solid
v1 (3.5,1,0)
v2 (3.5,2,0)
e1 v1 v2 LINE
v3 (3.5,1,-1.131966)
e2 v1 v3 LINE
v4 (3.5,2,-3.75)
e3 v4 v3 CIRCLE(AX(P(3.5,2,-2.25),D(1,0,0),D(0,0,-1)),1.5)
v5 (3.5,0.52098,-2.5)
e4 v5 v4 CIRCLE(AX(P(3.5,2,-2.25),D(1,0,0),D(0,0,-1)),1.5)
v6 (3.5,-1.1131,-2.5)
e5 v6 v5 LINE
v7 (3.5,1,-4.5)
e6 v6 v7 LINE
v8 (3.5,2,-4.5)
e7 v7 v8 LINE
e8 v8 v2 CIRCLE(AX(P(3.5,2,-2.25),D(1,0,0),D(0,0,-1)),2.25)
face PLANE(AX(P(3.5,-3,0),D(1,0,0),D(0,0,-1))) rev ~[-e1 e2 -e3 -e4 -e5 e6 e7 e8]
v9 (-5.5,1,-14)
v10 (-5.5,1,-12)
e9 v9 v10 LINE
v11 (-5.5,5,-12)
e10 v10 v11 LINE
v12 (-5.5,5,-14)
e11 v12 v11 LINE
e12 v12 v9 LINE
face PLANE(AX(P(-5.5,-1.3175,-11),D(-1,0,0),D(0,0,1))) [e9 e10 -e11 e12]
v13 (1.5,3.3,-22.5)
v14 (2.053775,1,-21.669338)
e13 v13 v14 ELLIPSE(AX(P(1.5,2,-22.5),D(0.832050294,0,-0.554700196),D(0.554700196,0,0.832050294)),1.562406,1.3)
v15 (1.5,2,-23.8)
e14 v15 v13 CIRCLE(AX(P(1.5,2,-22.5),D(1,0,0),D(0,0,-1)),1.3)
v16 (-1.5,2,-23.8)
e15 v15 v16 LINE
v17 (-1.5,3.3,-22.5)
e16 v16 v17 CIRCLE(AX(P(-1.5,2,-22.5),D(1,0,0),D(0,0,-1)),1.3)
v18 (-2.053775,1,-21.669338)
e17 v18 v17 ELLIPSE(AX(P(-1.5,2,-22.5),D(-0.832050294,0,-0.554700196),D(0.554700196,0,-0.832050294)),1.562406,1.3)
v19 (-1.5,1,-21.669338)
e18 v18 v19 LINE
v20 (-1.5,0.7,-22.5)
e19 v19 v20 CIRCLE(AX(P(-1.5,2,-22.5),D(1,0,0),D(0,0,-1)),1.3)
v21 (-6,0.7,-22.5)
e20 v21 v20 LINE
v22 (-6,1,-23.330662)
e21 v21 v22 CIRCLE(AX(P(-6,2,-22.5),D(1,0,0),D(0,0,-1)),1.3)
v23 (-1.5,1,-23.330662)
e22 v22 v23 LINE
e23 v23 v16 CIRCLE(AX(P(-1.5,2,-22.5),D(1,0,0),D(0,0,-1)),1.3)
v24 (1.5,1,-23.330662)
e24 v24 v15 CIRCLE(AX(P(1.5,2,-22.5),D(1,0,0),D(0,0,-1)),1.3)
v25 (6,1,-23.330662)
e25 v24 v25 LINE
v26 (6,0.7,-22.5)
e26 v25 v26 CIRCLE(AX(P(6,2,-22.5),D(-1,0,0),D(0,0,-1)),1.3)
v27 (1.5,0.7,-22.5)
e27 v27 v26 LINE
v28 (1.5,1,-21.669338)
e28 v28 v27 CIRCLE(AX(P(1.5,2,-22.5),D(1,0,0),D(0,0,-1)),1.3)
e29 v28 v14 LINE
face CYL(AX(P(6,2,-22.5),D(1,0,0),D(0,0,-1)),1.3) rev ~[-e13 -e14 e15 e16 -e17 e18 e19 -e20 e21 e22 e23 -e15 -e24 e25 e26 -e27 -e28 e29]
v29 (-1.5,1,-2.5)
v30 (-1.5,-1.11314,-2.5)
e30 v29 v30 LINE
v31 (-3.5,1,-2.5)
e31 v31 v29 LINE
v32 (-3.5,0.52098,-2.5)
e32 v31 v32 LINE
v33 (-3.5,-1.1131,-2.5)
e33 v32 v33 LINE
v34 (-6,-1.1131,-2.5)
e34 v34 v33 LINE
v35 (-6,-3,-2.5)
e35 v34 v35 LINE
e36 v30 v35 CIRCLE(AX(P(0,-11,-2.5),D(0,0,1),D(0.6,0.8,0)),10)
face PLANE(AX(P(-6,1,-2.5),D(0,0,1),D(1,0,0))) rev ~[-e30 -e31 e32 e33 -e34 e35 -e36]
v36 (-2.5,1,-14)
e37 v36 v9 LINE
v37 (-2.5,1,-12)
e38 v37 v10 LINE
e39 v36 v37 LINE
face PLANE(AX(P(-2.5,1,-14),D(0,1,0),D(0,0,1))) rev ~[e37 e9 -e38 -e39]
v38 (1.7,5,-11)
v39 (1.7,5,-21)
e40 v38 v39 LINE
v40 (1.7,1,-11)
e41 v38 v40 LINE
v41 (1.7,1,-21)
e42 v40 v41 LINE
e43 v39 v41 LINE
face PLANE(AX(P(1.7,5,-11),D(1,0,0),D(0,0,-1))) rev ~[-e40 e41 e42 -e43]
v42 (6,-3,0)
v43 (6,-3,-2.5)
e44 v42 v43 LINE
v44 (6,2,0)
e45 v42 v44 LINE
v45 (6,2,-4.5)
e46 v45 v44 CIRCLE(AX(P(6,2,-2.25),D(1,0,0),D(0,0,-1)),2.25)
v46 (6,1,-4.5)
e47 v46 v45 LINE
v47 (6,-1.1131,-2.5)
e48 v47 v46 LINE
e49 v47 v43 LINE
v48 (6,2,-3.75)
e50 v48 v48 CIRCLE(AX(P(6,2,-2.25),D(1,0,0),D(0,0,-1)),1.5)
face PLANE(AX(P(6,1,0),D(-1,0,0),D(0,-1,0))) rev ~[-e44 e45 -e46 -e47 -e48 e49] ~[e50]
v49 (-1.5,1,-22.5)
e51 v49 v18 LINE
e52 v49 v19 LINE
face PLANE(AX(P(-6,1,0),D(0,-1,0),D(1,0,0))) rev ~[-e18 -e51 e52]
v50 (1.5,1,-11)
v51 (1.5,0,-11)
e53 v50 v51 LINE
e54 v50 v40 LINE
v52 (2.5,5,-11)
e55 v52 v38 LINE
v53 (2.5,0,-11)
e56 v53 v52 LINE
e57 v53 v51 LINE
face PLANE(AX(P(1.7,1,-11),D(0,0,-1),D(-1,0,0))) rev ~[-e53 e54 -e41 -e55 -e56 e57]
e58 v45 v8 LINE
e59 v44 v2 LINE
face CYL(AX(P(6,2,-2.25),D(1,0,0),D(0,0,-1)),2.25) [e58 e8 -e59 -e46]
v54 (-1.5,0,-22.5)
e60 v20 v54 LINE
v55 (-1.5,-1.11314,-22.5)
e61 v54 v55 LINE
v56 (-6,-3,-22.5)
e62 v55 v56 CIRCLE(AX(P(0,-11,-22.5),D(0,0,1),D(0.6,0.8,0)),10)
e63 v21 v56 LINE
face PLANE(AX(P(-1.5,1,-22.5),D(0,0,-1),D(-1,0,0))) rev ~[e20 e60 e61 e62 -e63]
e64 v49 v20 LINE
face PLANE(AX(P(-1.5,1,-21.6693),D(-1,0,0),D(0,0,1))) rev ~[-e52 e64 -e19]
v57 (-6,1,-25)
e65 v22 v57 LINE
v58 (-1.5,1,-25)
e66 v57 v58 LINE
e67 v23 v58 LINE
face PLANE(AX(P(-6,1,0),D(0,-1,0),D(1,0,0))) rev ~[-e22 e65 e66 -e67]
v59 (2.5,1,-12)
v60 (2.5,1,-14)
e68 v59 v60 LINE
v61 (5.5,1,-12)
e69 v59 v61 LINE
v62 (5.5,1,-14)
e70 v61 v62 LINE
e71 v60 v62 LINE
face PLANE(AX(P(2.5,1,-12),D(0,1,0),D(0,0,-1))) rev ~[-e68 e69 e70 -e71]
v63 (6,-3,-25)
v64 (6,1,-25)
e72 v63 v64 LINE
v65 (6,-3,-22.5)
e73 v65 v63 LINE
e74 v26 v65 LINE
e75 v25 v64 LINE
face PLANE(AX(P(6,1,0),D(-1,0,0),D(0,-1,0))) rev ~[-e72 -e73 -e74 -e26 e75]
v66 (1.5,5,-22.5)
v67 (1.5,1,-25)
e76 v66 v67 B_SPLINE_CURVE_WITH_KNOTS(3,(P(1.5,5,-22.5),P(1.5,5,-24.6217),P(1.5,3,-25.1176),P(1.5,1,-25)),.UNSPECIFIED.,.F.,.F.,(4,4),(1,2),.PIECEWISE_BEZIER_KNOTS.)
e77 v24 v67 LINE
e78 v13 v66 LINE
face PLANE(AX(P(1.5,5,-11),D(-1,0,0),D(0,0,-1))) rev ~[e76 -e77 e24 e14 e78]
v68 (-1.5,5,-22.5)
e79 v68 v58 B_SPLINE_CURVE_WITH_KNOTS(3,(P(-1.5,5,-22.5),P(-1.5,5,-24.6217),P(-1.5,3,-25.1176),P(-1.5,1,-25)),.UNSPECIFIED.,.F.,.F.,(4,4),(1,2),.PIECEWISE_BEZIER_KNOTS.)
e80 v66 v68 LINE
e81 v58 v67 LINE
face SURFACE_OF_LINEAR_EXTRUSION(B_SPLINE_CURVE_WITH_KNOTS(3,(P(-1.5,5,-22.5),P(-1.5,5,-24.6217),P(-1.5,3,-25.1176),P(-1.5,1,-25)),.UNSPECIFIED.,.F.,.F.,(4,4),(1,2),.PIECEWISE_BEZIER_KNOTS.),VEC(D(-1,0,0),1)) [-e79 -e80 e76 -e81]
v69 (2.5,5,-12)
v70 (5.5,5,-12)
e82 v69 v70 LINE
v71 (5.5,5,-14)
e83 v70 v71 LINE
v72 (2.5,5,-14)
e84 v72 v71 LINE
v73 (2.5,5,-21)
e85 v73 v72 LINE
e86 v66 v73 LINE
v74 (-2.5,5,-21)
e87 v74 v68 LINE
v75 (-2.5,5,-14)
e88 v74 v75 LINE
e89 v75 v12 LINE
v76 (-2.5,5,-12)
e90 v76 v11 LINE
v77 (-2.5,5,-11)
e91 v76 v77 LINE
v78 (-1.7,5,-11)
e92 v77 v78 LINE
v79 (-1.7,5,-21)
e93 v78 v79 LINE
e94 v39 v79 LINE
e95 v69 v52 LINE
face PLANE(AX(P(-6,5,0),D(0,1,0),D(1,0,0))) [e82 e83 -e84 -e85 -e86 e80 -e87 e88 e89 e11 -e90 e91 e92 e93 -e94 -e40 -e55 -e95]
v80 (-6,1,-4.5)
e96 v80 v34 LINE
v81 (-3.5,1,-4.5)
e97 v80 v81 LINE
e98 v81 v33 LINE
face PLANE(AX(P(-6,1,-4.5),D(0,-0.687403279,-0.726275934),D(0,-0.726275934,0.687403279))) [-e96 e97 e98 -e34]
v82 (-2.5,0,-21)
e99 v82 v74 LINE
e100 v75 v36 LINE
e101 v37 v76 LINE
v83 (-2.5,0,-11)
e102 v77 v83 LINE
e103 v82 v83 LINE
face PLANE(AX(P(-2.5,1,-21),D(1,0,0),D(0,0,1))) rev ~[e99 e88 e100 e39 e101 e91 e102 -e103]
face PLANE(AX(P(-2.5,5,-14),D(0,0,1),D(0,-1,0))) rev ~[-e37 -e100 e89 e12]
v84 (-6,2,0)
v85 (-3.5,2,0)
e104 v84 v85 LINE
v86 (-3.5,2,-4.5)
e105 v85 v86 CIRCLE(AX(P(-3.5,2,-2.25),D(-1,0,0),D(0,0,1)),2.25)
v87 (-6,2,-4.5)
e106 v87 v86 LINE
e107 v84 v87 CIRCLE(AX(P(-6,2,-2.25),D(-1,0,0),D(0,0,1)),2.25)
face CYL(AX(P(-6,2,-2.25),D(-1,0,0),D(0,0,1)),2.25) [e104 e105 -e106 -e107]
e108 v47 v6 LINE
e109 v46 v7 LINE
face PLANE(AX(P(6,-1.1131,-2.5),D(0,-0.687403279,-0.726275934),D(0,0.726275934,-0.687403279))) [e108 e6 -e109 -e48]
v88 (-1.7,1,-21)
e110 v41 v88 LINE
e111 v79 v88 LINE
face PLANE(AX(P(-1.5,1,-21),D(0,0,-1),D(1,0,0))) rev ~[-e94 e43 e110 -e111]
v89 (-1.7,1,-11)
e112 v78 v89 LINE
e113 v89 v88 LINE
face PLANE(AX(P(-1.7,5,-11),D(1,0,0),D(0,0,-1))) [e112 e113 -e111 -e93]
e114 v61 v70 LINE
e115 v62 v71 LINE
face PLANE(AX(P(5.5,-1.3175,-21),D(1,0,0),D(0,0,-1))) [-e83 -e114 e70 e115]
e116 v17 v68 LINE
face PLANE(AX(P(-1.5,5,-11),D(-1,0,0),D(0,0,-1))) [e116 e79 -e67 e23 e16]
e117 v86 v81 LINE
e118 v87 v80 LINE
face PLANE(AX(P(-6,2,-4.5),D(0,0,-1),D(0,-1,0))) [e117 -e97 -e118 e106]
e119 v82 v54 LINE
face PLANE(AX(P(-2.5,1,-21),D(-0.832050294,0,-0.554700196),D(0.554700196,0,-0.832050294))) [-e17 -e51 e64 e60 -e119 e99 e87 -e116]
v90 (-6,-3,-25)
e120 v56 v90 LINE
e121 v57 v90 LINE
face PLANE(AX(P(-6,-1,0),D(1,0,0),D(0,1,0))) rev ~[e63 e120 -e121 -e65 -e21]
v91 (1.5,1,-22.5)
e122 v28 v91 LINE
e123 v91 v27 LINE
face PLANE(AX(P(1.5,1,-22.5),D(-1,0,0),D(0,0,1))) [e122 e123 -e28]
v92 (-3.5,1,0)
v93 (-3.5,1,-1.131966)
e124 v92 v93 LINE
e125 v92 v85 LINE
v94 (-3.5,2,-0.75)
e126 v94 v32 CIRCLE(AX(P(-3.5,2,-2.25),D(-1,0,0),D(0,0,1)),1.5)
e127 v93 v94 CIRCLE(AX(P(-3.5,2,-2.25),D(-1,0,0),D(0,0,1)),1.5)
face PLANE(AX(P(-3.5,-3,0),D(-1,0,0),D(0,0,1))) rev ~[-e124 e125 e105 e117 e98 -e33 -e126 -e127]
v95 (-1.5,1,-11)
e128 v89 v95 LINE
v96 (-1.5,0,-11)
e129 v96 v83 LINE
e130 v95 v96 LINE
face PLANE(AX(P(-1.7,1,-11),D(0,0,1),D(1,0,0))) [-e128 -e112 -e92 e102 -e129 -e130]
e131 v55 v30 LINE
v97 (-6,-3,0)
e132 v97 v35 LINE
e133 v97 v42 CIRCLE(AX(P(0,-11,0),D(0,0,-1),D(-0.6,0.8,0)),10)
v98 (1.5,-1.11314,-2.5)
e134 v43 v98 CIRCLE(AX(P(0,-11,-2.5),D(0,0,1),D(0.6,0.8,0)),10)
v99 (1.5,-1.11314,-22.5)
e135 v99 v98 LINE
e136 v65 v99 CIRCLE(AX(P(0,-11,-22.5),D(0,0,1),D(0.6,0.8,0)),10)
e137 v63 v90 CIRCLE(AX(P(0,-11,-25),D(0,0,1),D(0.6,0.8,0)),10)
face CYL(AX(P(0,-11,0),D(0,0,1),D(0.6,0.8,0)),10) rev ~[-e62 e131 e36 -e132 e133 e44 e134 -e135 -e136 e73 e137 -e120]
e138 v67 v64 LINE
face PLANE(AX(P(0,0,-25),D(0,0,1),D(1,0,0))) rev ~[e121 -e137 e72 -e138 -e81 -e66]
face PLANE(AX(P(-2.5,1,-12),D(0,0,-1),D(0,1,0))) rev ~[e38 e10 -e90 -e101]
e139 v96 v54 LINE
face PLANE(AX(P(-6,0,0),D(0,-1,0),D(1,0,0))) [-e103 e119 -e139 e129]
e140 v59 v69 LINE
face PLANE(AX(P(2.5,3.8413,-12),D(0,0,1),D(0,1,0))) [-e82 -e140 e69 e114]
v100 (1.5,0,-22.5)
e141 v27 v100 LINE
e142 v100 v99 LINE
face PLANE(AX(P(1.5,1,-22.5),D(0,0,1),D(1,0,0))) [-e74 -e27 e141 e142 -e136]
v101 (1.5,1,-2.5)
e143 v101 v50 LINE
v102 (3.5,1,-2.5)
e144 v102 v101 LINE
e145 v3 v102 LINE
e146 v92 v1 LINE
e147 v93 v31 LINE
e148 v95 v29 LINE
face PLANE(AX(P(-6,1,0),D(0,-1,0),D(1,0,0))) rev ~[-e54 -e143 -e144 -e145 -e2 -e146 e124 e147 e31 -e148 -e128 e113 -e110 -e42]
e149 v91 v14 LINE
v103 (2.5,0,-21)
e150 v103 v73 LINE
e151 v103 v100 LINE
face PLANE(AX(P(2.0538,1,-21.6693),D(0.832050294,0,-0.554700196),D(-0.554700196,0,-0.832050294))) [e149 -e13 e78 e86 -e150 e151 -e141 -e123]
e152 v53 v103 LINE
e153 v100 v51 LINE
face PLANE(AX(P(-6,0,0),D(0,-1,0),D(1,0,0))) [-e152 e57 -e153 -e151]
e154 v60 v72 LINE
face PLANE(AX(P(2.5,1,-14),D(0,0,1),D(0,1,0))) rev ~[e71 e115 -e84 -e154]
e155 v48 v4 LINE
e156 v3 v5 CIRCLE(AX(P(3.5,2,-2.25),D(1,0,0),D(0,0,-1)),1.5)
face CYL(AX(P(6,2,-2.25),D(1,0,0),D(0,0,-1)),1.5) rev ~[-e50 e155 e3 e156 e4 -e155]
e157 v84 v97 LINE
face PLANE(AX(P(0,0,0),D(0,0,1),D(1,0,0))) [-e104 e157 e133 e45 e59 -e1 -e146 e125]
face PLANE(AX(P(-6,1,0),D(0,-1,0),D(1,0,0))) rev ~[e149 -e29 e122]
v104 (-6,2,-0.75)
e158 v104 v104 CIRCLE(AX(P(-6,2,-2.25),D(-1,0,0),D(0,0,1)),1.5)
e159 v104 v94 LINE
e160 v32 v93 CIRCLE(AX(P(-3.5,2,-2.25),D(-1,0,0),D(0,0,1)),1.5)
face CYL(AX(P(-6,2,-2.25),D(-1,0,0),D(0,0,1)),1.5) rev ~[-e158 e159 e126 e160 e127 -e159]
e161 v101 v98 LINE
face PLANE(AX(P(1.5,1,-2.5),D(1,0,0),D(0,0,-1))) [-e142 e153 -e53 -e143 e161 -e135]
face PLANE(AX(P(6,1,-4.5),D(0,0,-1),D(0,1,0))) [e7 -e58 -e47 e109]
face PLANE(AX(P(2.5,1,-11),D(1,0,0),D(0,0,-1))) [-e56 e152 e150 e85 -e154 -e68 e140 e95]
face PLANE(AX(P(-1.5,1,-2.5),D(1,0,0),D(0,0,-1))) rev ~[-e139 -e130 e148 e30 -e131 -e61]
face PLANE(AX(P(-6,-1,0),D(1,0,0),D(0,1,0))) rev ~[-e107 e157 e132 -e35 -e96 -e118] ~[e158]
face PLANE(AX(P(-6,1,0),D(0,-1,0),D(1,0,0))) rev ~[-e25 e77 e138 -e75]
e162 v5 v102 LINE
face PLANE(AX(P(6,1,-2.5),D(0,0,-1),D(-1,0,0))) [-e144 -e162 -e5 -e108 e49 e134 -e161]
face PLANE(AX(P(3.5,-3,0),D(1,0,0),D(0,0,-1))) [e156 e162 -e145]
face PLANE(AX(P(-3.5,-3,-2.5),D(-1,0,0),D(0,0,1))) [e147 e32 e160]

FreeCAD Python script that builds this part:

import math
import FreeCAD as App
import Part
import Sketcher

V = App.Vector
Q = App.Units.Quantity

doc = App.newDocument("Part")
body = doc.addObject("PartDesign::Body", "Body")

# Sketch on XY plane
sketch1 = body.newObject("Sketcher::SketchObject", "Sketch")
sketch1.AttachmentSupport = (doc.getObject("XY_Plane"), [""])
sketch1.MapMode = "FlatFace"
sketch1.addGeometry(Part.LineSegment(V(6, 1, 0), V(-6, 1, 0)), False)
sketch1.addGeometry(Part.LineSegment(V(-6, 1, 0), V(-6, -3, 0)), False)
sketch1.addGeometry(Part.ArcOfCircle(Part.Circle(V(0, -11, 0), V(0, 0, 1), 10), math.radians(53), math.radians(127)), False)
sketch1.addGeometry(Part.LineSegment(V(6, -3, 0), V(6, 1, 0)), False)
sketch1.addConstraint(Sketcher.Constraint("Coincident", 0, 2, 1, 1))
sketch1.addConstraint(Sketcher.Constraint("Coincident", 1, 2, 2, 2))
sketch1.addConstraint(Sketcher.Constraint("Coincident", 2, 1, 3, 1))
sketch1.addConstraint(Sketcher.Constraint("Coincident", 3, 2, 0, 1))
sketch1.addConstraint(Sketcher.Constraint("Horizontal", 0))
sketch1.addConstraint(Sketcher.Constraint("Vertical", 1))
sketch1.addConstraint(Sketcher.Constraint("Vertical", 3))
sketch1.addConstraint(Sketcher.Constraint("Symmetric", 1, 2, 2, 1, -2))
sketch1.addConstraint(Sketcher.Constraint("DistanceX", 0, 2, 0, 1, Q("12 mm")))
sketch1.addConstraint(Sketcher.Constraint("Radius", 2, Q("10 mm")))
sketch1.addConstraint(Sketcher.Constraint("DistanceY", 2, 3, 0, 2, Q("12 mm")))
sketch1.addConstraint(Sketcher.Constraint("DistanceY", 2, 3, -1, 1, Q("11 mm")))
pad1 = body.newObject("PartDesign::Pad", "Pad")
pad1.Profile = sketch1
pad1.Length = 25
pad1.Reversed = True

# Sketch on XZ plane
sketch2 = body.newObject("Sketcher::SketchObject", "Sketch001")
sketch2.AttachmentSupport = (doc.getObject("XZ_Plane"), [""])
sketch2.MapMode = "FlatFace"
sketch2.AttachmentOffset = App.Placement(V(0, 0, -1), App.Rotation())
sketch2.addGeometry(Part.LineSegment(V(1.5, -2.5, 0), V(6, -2.5, 0)), False)
sketch2.addGeometry(Part.LineSegment(V(6, -2.5, 0), V(6, -22.5, 0)), False)
sketch2.addGeometry(Part.LineSegment(V(6, -22.5, 0), V(1.5, -22.5, 0)), False)
sketch2.addGeometry(Part.LineSegment(V(1.5, -22.5, 0), V(1.5, -2.5, 0)), False)
sketch2.addGeometry(Part.LineSegment(V(-6, -22.5, 0), V(-6, -2.5, 0)), False)
sketch2.addGeometry(Part.LineSegment(V(-6, -2.5, 0), V(-1.5, -2.5, 0)), False)
sketch2.addGeometry(Part.LineSegment(V(-1.5, -2.5, 0), V(-1.5, -22.5, 0)), False)
sketch2.addGeometry(Part.LineSegment(V(-1.5, -22.5, 0), V(-6, -22.5, 0)), False)
sketch2.addConstraint(Sketcher.Constraint("Coincident", 0, 2, 1, 1))
sketch2.addConstraint(Sketcher.Constraint("Coincident", 1, 2, 2, 1))
sketch2.addConstraint(Sketcher.Constraint("Coincident", 2, 2, 3, 1))
sketch2.addConstraint(Sketcher.Constraint("Coincident", 3, 2, 0, 1))
sketch2.addConstraint(Sketcher.Constraint("Coincident", 4, 2, 5, 1))
sketch2.addConstraint(Sketcher.Constraint("Coincident", 5, 2, 6, 1))
sketch2.addConstraint(Sketcher.Constraint("Coincident", 6, 2, 7, 1))
sketch2.addConstraint(Sketcher.Constraint("Coincident", 7, 2, 4, 1))
sketch2.addConstraint(Sketcher.Constraint("Horizontal", 0))
sketch2.addConstraint(Sketcher.Constraint("Vertical", 1))
sketch2.addConstraint(Sketcher.Constraint("Horizontal", 2))
sketch2.addConstraint(Sketcher.Constraint("Vertical", 3))
sketch2.addConstraint(Sketcher.Constraint("Vertical", 4))
sketch2.addConstraint(Sketcher.Constraint("Horizontal", 5))
sketch2.addConstraint(Sketcher.Constraint("Vertical", 6))
sketch2.addConstraint(Sketcher.Constraint("Horizontal", 7))
sketch2.addConstraint(Sketcher.Constraint("Symmetric", 0, 2, 4, 2, -2))
sketch2.addConstraint(Sketcher.Constraint("Symmetric", 2, 2, 6, 2, -2))
sketch2.addConstraint(Sketcher.Constraint("DistanceX", 0, 1, 0, 2, Q("4.5 mm")))
sketch2.addConstraint(Sketcher.Constraint("DistanceX", 4, 2, 0, 2, Q("12 mm")))
sketch2.addConstraint(Sketcher.Constraint("DistanceY", 0, 2, -1, 1, Q("2.5 mm")))
sketch2.addConstraint(Sketcher.Constraint("DistanceY", 1, 2, 1, 1, Q("20 mm")))
pocket1 = body.newObject("PartDesign::Pocket", "Pocket")
pocket1.Profile = sketch2
pocket1.Length = 25
pocket1.Reversed = True

# Sketch on XZ plane
sketch3 = body.newObject("Sketcher::SketchObject", "Sketch002")
sketch3.AttachmentSupport = (doc.getObject("XZ_Plane"), [""])
sketch3.MapMode = "FlatFace"
sketch3.AttachmentOffset = App.Placement(V(0, 0, -1), App.Rotation())
sketch3.addGeometry(Part.LineSegment(V(1.5, -21, 0), V(1.5, -11, 0)), False)
sketch3.addGeometry(Part.LineSegment(V(1.5, -11, 0), V(2.5, -11, 0)), False)
sketch3.addGeometry(Part.LineSegment(V(2.5, -11, 0), V(2.5, -21, 0)), False)
sketch3.addGeometry(Part.LineSegment(V(2.5, -21, 0), V(1.5, -22.5, 0)), False)
sketch3.addGeometry(Part.LineSegment(V(1.5, -22.5, 0), V(-1.5, -22.5, 0)), False)
sketch3.addGeometry(Part.LineSegment(V(-1.5, -22.5, 0), V(-2.5, -21, 0)), False)
sketch3.addGeometry(Part.LineSegment(V(-2.5, -21, 0), V(-2.5, -11, 0)), False)
sketch3.addGeometry(Part.LineSegment(V(-2.5, -11, 0), V(-1.5, -11, 0)), False)
sketch3.addGeometry(Part.LineSegment(V(-1.5, -11, 0), V(-1.5, -21, 0)), False)
sketch3.addGeometry(Part.LineSegment(V(-1.5, -21, 0), V(1.5, -21, 0)), False)
sketch3.addConstraint(Sketcher.Constraint("Coincident", 0, 2, 1, 1))
sketch3.addConstraint(Sketcher.Constraint("Coincident", 1, 2, 2, 1))
sketch3.addConstraint(Sketcher.Constraint("Coincident", 2, 2, 3, 1))
sketch3.addConstraint(Sketcher.Constraint("Coincident", 3, 2, 4, 1))
sketch3.addConstraint(Sketcher.Constraint("Coincident", 4, 2, 5, 1))
sketch3.addConstraint(Sketcher.Constraint("Coincident", 5, 2, 6, 1))
sketch3.addConstraint(Sketcher.Constraint("Coincident", 6, 2, 7, 1))
sketch3.addConstraint(Sketcher.Constraint("Coincident", 7, 2, 8, 1))
sketch3.addConstraint(Sketcher.Constraint("Coincident", 8, 2, 9, 1))
sketch3.addConstraint(Sketcher.Constraint("Coincident", 9, 2, 0, 1))
sketch3.addConstraint(Sketcher.Constraint("Vertical", 0))
sketch3.addConstraint(Sketcher.Constraint("Horizontal", 1))
sketch3.addConstraint(Sketcher.Constraint("Vertical", 2))
sketch3.addConstraint(Sketcher.Constraint("Horizontal", 4))
sketch3.addConstraint(Sketcher.Constraint("Vertical", 6))
sketch3.addConstraint(Sketcher.Constraint("Horizontal", 7))
sketch3.addConstraint(Sketcher.Constraint("Vertical", 8))
sketch3.addConstraint(Sketcher.Constraint("Horizontal", 9))
sketch3.addConstraint(Sketcher.Constraint("Symmetric", 2, 2, 5, 2, -2))
sketch3.addConstraint(Sketcher.Constraint("Symmetric", 0, 2, 7, 2, -2))
sketch3.addConstraint(Sketcher.Constraint("Horizontal", 5, 2, 8, 2))
sketch3.addConstraint(Sketcher.Constraint("Vertical", 0, 2, 3, 2))
sketch3.addConstraint(Sketcher.Constraint("Vertical", 4, 2, 7, 2))
sketch3.addConstraint(Sketcher.Constraint("DistanceX", 1, 1, 1, 2, Q("1 mm")))
sketch3.addConstraint(Sketcher.Constraint("DistanceY", 0, 1, 0, 2, Q("10 mm")))
sketch3.addConstraint(Sketcher.Constraint("DistanceX", -1, 1, 0, 2, Q("1.5 mm")))
sketch3.addConstraint(Sketcher.Constraint("DistanceY", 3, 2, 2, 2, Q("1.5 mm")))
sketch3.addConstraint(Sketcher.Constraint("DistanceY", 0, 2, -1, 1, Q("11 mm")))
pad2 = body.newObject("PartDesign::Pad", "Pad001")
pad2.Profile = sketch3
pad2.Length = 4
pad2.Reversed = True

# Sketch on YZ plane
sketch4 = body.newObject("Sketcher::SketchObject", "Sketch003")
sketch4.AttachmentSupport = (doc.getObject("YZ_Plane"), [""])
sketch4.MapMode = "FlatFace"
sketch4.AttachmentOffset = App.Placement(V(0, 0, -1.5), App.Rotation())
sketch4.addGeometry(Part.LineSegment(V(1, -25, 0), V(1, -22.5, 0)), False)
sketch4.addGeometry(Part.LineSegment(V(1, -22.5, 0), V(5, -22.5, 0)), False)
sketch4.addGeometry(Part.BSplineCurve([V(5, -22.5, 0), V(5, -24.6217, 0), V(3, -25.1176, 0), V(1, -25, 0)], [4, 4], [1, 2], False, 3, [1, 1, 1, 1], False), False)
sketch4.addConstraint(Sketcher.Constraint("Block", 2))
sketch4.addConstraint(Sketcher.Constraint("Coincident", 0, 2, 1, 1))
sketch4.addConstraint(Sketcher.Constraint("Coincident", 1, 2, 2, 1))
sketch4.addConstraint(Sketcher.Constraint("Coincident", 2, 2, 0, 1))
sketch4.addConstraint(Sketcher.Constraint("Vertical", 0))
sketch4.addConstraint(Sketcher.Constraint("Horizontal", 1))
pad3 = body.newObject("PartDesign::Pad", "Pad002")
pad3.Profile = sketch4
pad3.Length = 3

# Sketch on YZ plane
sketch5 = body.newObject("Sketcher::SketchObject", "Sketch004")
sketch5.AttachmentSupport = (doc.getObject("YZ_Plane"), [""])
sketch5.MapMode = "FlatFace"
sketch5.AttachmentOffset = App.Placement(V(0, 0, 6), App.Rotation())
sketch5.addGeometry(Part.Circle(V(2, -22.5, 0), V(0, 0, 1), 1.3), False)
sketch5.addConstraint(Sketcher.Constraint("Diameter", 0, Q("2.6 mm")))
sketch5.addConstraint(Sketcher.Constraint("DistanceX", -1, 1, 0, 3, Q("2 mm")))
sketch5.addConstraint(Sketcher.Constraint("DistanceY", 0, 3, -1, 1, Q("22.5 mm")))
pocket2 = body.newObject("PartDesign::Pocket", "Pocket001")
pocket2.Profile = sketch5
pocket2.Length = 12

# Sketch on XZ plane
sketch6 = body.newObject("Sketcher::SketchObject", "Sketch005")
sketch6.AttachmentSupport = (doc.getObject("XZ_Plane"), [""])
sketch6.MapMode = "FlatFace"
sketch6.AttachmentOffset = App.Placement(V(0, 0, -5), App.Rotation())
sketch6.addGeometry(Part.LineSegment(V(-1.7, -21, 0), V(-1.7, -11, 0)), False)
sketch6.addGeometry(Part.LineSegment(V(-1.7, -11, 0), V(-1.5, -11, 0)), False)
sketch6.addGeometry(Part.LineSegment(V(-1.5, -11, 0), V(-1.5, -21, 0)), False)
sketch6.addGeometry(Part.LineSegment(V(-1.5, -21, 0), V(-1.7, -21, 0)), False)
sketch6.addGeometry(Part.LineSegment(V(1.7, -21, 0), V(1.5, -21, 0)), False)
sketch6.addGeometry(Part.LineSegment(V(1.5, -21, 0), V(1.5, -11, 0)), False)
sketch6.addGeometry(Part.LineSegment(V(1.5, -11, 0), V(1.7, -11, 0)), False)
sketch6.addGeometry(Part.LineSegment(V(1.7, -11, 0), V(1.7, -21, 0)), False)
sketch6.addConstraint(Sketcher.Constraint("Coincident", 0, 2, 1, 1))
sketch6.addConstraint(Sketcher.Constraint("Coincident", 1, 2, 2, 1))
sketch6.addConstraint(Sketcher.Constraint("Coincident", 2, 2, 3, 1))
sketch6.addConstraint(Sketcher.Constraint("Coincident", 3, 2, 0, 1))
sketch6.addConstraint(Sketcher.Constraint("Coincident", 4, 2, 5, 1))
sketch6.addConstraint(Sketcher.Constraint("Coincident", 5, 2, 6, 1))
sketch6.addConstraint(Sketcher.Constraint("Coincident", 6, 2, 7, 1))
sketch6.addConstraint(Sketcher.Constraint("Coincident", 7, 2, 4, 1))
sketch6.addConstraint(Sketcher.Constraint("Vertical", 0))
sketch6.addConstraint(Sketcher.Constraint("Horizontal", 1))
sketch6.addConstraint(Sketcher.Constraint("Vertical", 2))
sketch6.addConstraint(Sketcher.Constraint("Horizontal", 3))
sketch6.addConstraint(Sketcher.Constraint("Horizontal", 4))
sketch6.addConstraint(Sketcher.Constraint("Vertical", 5))
sketch6.addConstraint(Sketcher.Constraint("Horizontal", 6))
sketch6.addConstraint(Sketcher.Constraint("Vertical", 7))
sketch6.addConstraint(Sketcher.Constraint("Symmetric", 2, 2, 4, 2, -2))
sketch6.addConstraint(Sketcher.Constraint("Symmetric", 0, 2, 6, 2, -2))
sketch6.addConstraint(Sketcher.Constraint("DistanceX", 1, 1, 1, 2, Q("0.2 mm")))
sketch6.addConstraint(Sketcher.Constraint("DistanceY", 0, 1, 0, 2, Q("10 mm")))
sketch6.addConstraint(Sketcher.Constraint("DistanceY", 0, 2, -1, 1, Q("11 mm")))
sketch6.addConstraint(Sketcher.Constraint("DistanceX", 2, 2, 4, 2, Q("3 mm")))
pocket3 = body.newObject("PartDesign::Pocket", "Pocket002")
pocket3.Profile = sketch6
pocket3.Length = 4
pocket3.Reversed = True

# Sketch on YZ plane
sketch7 = body.newObject("Sketcher::SketchObject", "Sketch006")
sketch7.AttachmentSupport = (doc.getObject("YZ_Plane"), [""])
sketch7.MapMode = "FlatFace"
sketch7.AttachmentOffset = App.Placement(V(0, 0, 6), App.Rotation())
sketch7.addGeometry(Part.LineSegment(V(2, 0, 0), V(1, 0, 0)), False)
sketch7.addGeometry(Part.LineSegment(V(1, 0, 0), V(1, -2.5, 0)), False)
sketch7.addGeometry(Part.LineSegment(V(1, -2.5, 0), V(-1.1, -2.5, 0)), False)
sketch7.addGeometry(Part.LineSegment(V(-1.1, -2.5, 0), V(1, -4.5, 0)), False)
sketch7.addGeometry(Part.LineSegment(V(1, -4.5, 0), V(2, -4.5, 0)), False)
sketch7.addGeometry(Part.ArcOfCircle(Part.Circle(V(2, -2.2, 0), V(0, 0, 1), 2.2), math.radians(-90), math.radians(90)), False)
sketch7.addConstraint(Sketcher.Constraint("Coincident", 0, 2, 1, 1))
sketch7.addConstraint(Sketcher.Constraint("Coincident", 1, 2, 2, 1))
sketch7.addConstraint(Sketcher.Constraint("Coincident", 2, 2, 3, 1))
sketch7.addConstraint(Sketcher.Constraint("Coincident", 3, 2, 4, 1))
sketch7.addConstraint(Sketcher.Constraint("Tangent", 4, 2, 5, 1))
sketch7.addConstraint(Sketcher.Constraint("Tangent", 5, 2, 0, 1))
sketch7.addConstraint(Sketcher.Constraint("Horizontal", 0))
sketch7.addConstraint(Sketcher.Constraint("Vertical", 1))
sketch7.addConstraint(Sketcher.Constraint("Horizontal", 2))
sketch7.addConstraint(Sketcher.Constraint("Horizontal", 4))
sketch7.addConstraint(Sketcher.Constraint("PointOnObject", 0, 2, -1))
sketch7.addConstraint(Sketcher.Constraint("Vertical", 1, 2, 3, 2))
sketch7.addConstraint(Sketcher.Constraint("DistanceX", 0, 2, 0, 1, Q("1 mm")))
sketch7.addConstraint(Sketcher.Constraint("Radius", 5, Q("2.25 mm")))
sketch7.addConstraint(Sketcher.Constraint("DistanceY", 1, 2, 1, 1, Q("2.5 mm")))
sketch7.addConstraint(Sketcher.Constraint("DistanceX", -1, 1, 5, 3, Q("2 mm")))
sketch7.addConstraint(Sketcher.Constraint("DistanceX", 2, 2, 2, 1, Q("2.113 mm")))
pad4 = body.newObject("PartDesign::Pad", "Pad003")
pad4.Profile = sketch7
pad4.Length = 2.5
pad4.Reversed = True

# Sketch on YZ plane
sketch8 = body.newObject("Sketcher::SketchObject", "Sketch007")
sketch8.AttachmentSupport = (doc.getObject("YZ_Plane"), [""])
sketch8.MapMode = "FlatFace"
sketch8.AttachmentOffset = App.Placement(V(0, 0, -6), App.Rotation())
sketch8.addGeometry(Part.LineSegment(V(1, 0, 0), V(2, 0, 0)), False)
sketch8.addGeometry(Part.ArcOfCircle(Part.Circle(V(2, -2.2, 0), V(0, 0, 1), 2.2), math.radians(-90), math.radians(90)), False)
sketch8.addGeometry(Part.LineSegment(V(2, -4.5, 0), V(1, -4.5, 0)), False)
sketch8.addGeometry(Part.LineSegment(V(1, -4.5, 0), V(-1.1, -2.5, 0)), False)
sketch8.addGeometry(Part.LineSegment(V(-1.1, -2.5, 0), V(1, -2.5, 0)), False)
sketch8.addGeometry(Part.LineSegment(V(1, -2.5, 0), V(1, 0, 0)), False)
sketch8.addConstraint(Sketcher.Constraint("Tangent", 0, 2, 1, 2))
sketch8.addConstraint(Sketcher.Constraint("Tangent", 1, 1, 2, 1))
sketch8.addConstraint(Sketcher.Constraint("Coincident", 2, 2, 3, 1))
sketch8.addConstraint(Sketcher.Constraint("Coincident", 3, 2, 4, 1))
sketch8.addConstraint(Sketcher.Constraint("Coincident", 4, 2, 5, 1))
sketch8.addConstraint(Sketcher.Constraint("Coincident", 5, 2, 0, 1))
sketch8.addConstraint(Sketcher.Constraint("Horizontal", 0))
sketch8.addConstraint(Sketcher.Constraint("Horizontal", 2))
sketch8.addConstraint(Sketcher.Constraint("Horizontal", 4))
sketch8.addConstraint(Sketcher.Constraint("Vertical", 5))
sketch8.addConstraint(Sketcher.Constraint("PointOnObject", 0, 2, -1))
sketch8.addConstraint(Sketcher.Constraint("Vertical", 2, 2, 4, 2))
sketch8.addConstraint(Sketcher.Constraint("DistanceX", 0, 1, 0, 2, Q("1 mm")))
sketch8.addConstraint(Sketcher.Constraint("Radius", 1, Q("2.25 mm")))
sketch8.addConstraint(Sketcher.Constraint("DistanceY", 5, 1, 5, 2, Q("2.5 mm")))
sketch8.addConstraint(Sketcher.Constraint("DistanceX", -1, 1, 1, 3, Q("2 mm")))
sketch8.addConstraint(Sketcher.Constraint("DistanceX", 4, 1, 4, 2, Q("2.113 mm")))
pad5 = body.newObject("PartDesign::Pad", "Pad004")
pad5.Profile = sketch8
pad5.Length = 2.5

# Sketch on YZ plane
sketch9 = body.newObject("Sketcher::SketchObject", "Sketch008")
sketch9.AttachmentSupport = (doc.getObject("YZ_Plane"), [""])
sketch9.MapMode = "FlatFace"
sketch9.AttachmentOffset = App.Placement(V(0, 0, 6), App.Rotation())
sketch9.addGeometry(Part.Circle(V(2, -2.2, 0), V(0, 0, 1), 1.5), False)
sketch9.addConstraint(Sketcher.Constraint("Diameter", 0, Q("3 mm")))
sketch9.addConstraint(Sketcher.Constraint("DistanceX", -1, 1, 0, 3, Q("2 mm")))
sketch9.addConstraint(Sketcher.Constraint("DistanceY", 0, 3, -1, 1, Q("2.25 mm")))
pocket4 = body.newObject("PartDesign::Pocket", "Pocket003")
pocket4.Profile = sketch9
pocket4.Length = 2.5

# Sketch on YZ plane
sketch10 = body.newObject("Sketcher::SketchObject", "Sketch009")
sketch10.AttachmentSupport = (doc.getObject("YZ_Plane"), [""])
sketch10.MapMode = "FlatFace"
sketch10.AttachmentOffset = App.Placement(V(0, 0, -6), App.Rotation())
sketch10.addGeometry(Part.Circle(V(2, -2.2, 0), V(0, 0, 1), 1.5), False)
sketch10.addConstraint(Sketcher.Constraint("Diameter", 0, Q("3 mm")))
sketch10.addConstraint(Sketcher.Constraint("DistanceX", -1, 1, 0, 3, Q("2 mm")))
sketch10.addConstraint(Sketcher.Constraint("DistanceY", 0, 3, -1, 1, Q("2.25 mm")))
pocket5 = body.newObject("PartDesign::Pocket", "Pocket004")
pocket5.Profile = sketch10
pocket5.Length = 2.5
pocket5.Reversed = True

# Sketch on XZ plane
sketch11 = body.newObject("Sketcher::SketchObject", "Sketch010")
sketch11.AttachmentSupport = (doc.getObject("XZ_Plane"), [""])
sketch11.MapMode = "FlatFace"
sketch11.AttachmentOffset = App.Placement(V(0, 0, -1), App.Rotation())
sketch11.addGeometry(Part.LineSegment(V(-1.5, -11, 0), V(-2.5, -11, 0)), False)
sketch11.addGeometry(Part.LineSegment(V(-2.5, -11, 0), V(-2.5, -21, 0)), False)
sketch11.addGeometry(Part.LineSegment(V(-2.5, -21, 0), V(-1.5, -22.5, 0)), False)
sketch11.addGeometry(Part.LineSegment(V(-1.5, -22.5, 0), V(-1.5, -11, 0)), False)
sketch11.addGeometry(Part.LineSegment(V(1.5, -22.5, 0), V(2.5, -21, 0)), False)
sketch11.addGeometry(Part.LineSegment(V(2.5, -21, 0), V(2.5, -11, 0)), False)
sketch11.addGeometry(Part.LineSegment(V(2.5, -11, 0), V(1.5, -11, 0)), False)
sketch11.addGeometry(Part.LineSegment(V(1.5, -11, 0), V(1.5, -22.5, 0)), False)
sketch11.addConstraint(Sketcher.Constraint("Coincident", 0, 2, 1, 1))
sketch11.addConstraint(Sketcher.Constraint("Coincident", 1, 2, 2, 1))
sketch11.addConstraint(Sketcher.Constraint("Coincident", 2, 2, 3, 1))
sketch11.addConstraint(Sketcher.Constraint("Coincident", 3, 2, 0, 1))
sketch11.addConstraint(Sketcher.Constraint("Coincident", 4, 2, 5, 1))
sketch11.addConstraint(Sketcher.Constraint("Coincident", 5, 2, 6, 1))
sketch11.addConstraint(Sketcher.Constraint("Coincident", 6, 2, 7, 1))
sketch11.addConstraint(Sketcher.Constraint("Coincident", 7, 2, 4, 1))
sketch11.addConstraint(Sketcher.Constraint("Horizontal", 0))
sketch11.addConstraint(Sketcher.Constraint("Vertical", 1))
sketch11.addConstraint(Sketcher.Constraint("Vertical", 3))
sketch11.addConstraint(Sketcher.Constraint("Vertical", 5))
sketch11.addConstraint(Sketcher.Constraint("Horizontal", 6))
sketch11.addConstraint(Sketcher.Constraint("Vertical", 7))
sketch11.addConstraint(Sketcher.Constraint("Symmetric", 1, 2, 4, 2, -2))
sketch11.addConstraint(Sketcher.Constraint("Symmetric", 3, 2, 6, 2, -2))
sketch11.addConstraint(Sketcher.Constraint("Horizontal", 2, 2, 7, 2))
sketch11.addConstraint(Sketcher.Constraint("DistanceX", 0, 2, 0, 1, Q("1 mm")))
sketch11.addConstraint(Sketcher.Constraint("DistanceY", 1, 2, 1, 1, Q("10 mm")))
sketch11.addConstraint(Sketcher.Constraint("DistanceY", 3, 1, 3, 2, Q("11.5 mm")))
sketch11.addConstraint(Sketcher.Constraint("DistanceY", 0, 2, -1, 1, Q("11 mm")))
sketch11.addConstraint(Sketcher.Constraint("DistanceX", 2, 2, 4, 2, Q("4 mm")))
pad6 = body.newObject("PartDesign::Pad", "Pad005")
pad6.Profile = sketch11
pad6.Length = 1

# Sketch on YZ plane
sketch12 = body.newObject("Sketcher::SketchObject", "Sketch011")
sketch12.AttachmentSupport = (doc.getObject("YZ_Plane"), [""])
sketch12.MapMode = "FlatFace"
sketch12.AttachmentOffset = App.Placement(V(0, 0, 2.5), App.Rotation())
sketch12.addGeometry(Part.LineSegment(V(1, -12, 0), V(1, -14, 0)), False)
sketch12.addGeometry(Part.LineSegment(V(1, -14, 0), V(5, -14, 0)), False)
sketch12.addGeometry(Part.LineSegment(V(5, -14, 0), V(5, -12, 0)), False)
sketch12.addGeometry(Part.LineSegment(V(5, -12, 0), V(1, -12, 0)), False)
sketch12.addConstraint(Sketcher.Constraint("Coincident", 0, 2, 1, 1))
sketch12.addConstraint(Sketcher.Constraint("Coincident", 1, 2, 2, 1))
sketch12.addConstraint(Sketcher.Constraint("Coincident", 2, 2, 3, 1))
sketch12.addConstraint(Sketcher.Constraint("Coincident", 3, 2, 0, 1))
sketch12.addConstraint(Sketcher.Constraint("Vertical", 0))
sketch12.addConstraint(Sketcher.Constraint("Horizontal", 1))
sketch12.addConstraint(Sketcher.Constraint("Vertical", 2))
sketch12.addConstraint(Sketcher.Constraint("Horizontal", 3))
sketch12.addConstraint(Sketcher.Constraint("DistanceX", 1, 1, 1, 2, Q("4 mm")))
sketch12.addConstraint(Sketcher.Constraint("DistanceY", 0, 2, 0, 1, Q("2 mm")))
sketch12.addConstraint(Sketcher.Constraint("DistanceX", -1, 1, 0, 2, Q("1 mm")))
sketch12.addConstraint(Sketcher.Constraint("DistanceY", 0, 2, -1, 1, Q("14 mm")))
pad7 = body.newObject("PartDesign::Pad", "Pad006")
pad7.Profile = sketch12
pad7.Length = 3

# Sketch on YZ plane
sketch13 = body.newObject("Sketcher::SketchObject", "Sketch012")
sketch13.AttachmentSupport = (doc.getObject("YZ_Plane"), [""])
sketch13.MapMode = "FlatFace"
sketch13.AttachmentOffset = App.Placement(V(0, 0, -2.5), App.Rotation())
sketch13.addGeometry(Part.LineSegment(V(1, -14, 0), V(1, -12, 0)), False)
sketch13.addGeometry(Part.LineSegment(V(1, -12, 0), V(5, -12, 0)), False)
sketch13.addGeometry(Part.LineSegment(V(5, -12, 0), V(5, -14, 0)), False)
sketch13.addGeometry(Part.LineSegment(V(5, -14, 0), V(1, -14, 0)), False)
sketch13.addConstraint(Sketcher.Constraint("Coincident", 0, 2, 1, 1))
sketch13.addConstraint(Sketcher.Constraint("Coincident", 1, 2, 2, 1))
sketch13.addConstraint(Sketcher.Constraint("Coincident", 2, 2, 3, 1))
sketch13.addConstraint(Sketcher.Constraint("Coincident", 3, 2, 0, 1))
sketch13.addConstraint(Sketcher.Constraint("Vertical", 0))
sketch13.addConstraint(Sketcher.Constraint("Horizontal", 1))
sketch13.addConstraint(Sketcher.Constraint("Vertical", 2))
sketch13.addConstraint(Sketcher.Constraint("Horizontal", 3))
sketch13.addConstraint(Sketcher.Constraint("DistanceX", 1, 1, 1, 2, Q("4 mm")))
sketch13.addConstraint(Sketcher.Constraint("DistanceY", 0, 1, 0, 2, Q("2 mm")))
sketch13.addConstraint(Sketcher.Constraint("DistanceX", -1, 1, 0, 2, Q("1 mm")))
sketch13.addConstraint(Sketcher.Constraint("DistanceY", 0, 2, -1, 1, Q("12 mm")))
pad8 = body.newObject("PartDesign::Pad", "Pad007")
pad8.Profile = sketch13
pad8.Length = 3
pad8.Reversed = True

doc.recompute()
